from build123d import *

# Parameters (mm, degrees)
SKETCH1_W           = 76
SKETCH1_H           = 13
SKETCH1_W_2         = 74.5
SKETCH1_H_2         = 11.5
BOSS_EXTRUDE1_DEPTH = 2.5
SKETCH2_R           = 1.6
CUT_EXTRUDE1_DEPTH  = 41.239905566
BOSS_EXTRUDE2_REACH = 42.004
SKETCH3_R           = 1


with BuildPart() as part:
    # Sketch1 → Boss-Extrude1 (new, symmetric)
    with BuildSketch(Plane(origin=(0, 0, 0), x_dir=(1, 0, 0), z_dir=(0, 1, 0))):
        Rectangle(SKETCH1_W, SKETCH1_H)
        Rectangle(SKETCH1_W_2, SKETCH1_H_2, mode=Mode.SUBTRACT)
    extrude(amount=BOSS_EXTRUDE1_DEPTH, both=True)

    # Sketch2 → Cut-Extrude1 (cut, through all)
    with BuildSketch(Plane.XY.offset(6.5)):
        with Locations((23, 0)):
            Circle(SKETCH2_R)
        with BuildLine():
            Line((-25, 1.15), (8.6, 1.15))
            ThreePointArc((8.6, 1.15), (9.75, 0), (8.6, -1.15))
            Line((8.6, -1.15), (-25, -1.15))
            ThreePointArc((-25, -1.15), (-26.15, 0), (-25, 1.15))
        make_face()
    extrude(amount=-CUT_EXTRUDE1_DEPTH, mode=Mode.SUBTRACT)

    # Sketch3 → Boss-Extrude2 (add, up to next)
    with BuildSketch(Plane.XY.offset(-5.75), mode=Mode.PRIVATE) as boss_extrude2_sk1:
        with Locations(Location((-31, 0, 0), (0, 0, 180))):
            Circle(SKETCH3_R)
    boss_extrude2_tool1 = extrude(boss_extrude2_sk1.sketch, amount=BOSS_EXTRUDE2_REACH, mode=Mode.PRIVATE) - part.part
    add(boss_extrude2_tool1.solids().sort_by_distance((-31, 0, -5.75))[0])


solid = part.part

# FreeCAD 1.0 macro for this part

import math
import FreeCAD as App
import Part
import Sketcher

V = App.Vector

doc = App.newDocument("Part")
body = doc.addObject("PartDesign::Body", "Body")

# Sketch on XZ plane
sketch1 = body.newObject("Sketcher::SketchObject", "Sketch")
sketch1.AttachmentSupport = (doc.getObject("XZ_Plane"), [""])
sketch1.MapMode = "FlatFace"
sketch1.addGeometry([
    Part.LineSegment(V(-38, -6, 0), V(-38, 6, 0)),  # 0
    Part.LineSegment(V(-38, 6, 0), V(38, 6, 0)),  # 1
    Part.LineSegment(V(38, 6, 0), V(38, -6, 0)),  # 2
    Part.LineSegment(V(38, -6, 0), V(-38, -6, 0)),  # 3
    Part.LineSegment(V(37, 6, 0), V(-37, 6, 0)),  # 4
    Part.LineSegment(V(-37, 6, 0), V(-37, -6, 0)),  # 5
    Part.LineSegment(V(-37, -6, 0), V(37, -6, 0)),  # 6
    Part.LineSegment(V(37, -6, 0), V(37, 6, 0)),  # 7
], False)
sketch1.addConstraint([
    Sketcher.Constraint("Coincident", 0, 2, 1, 1),
    Sketcher.Constraint("Coincident", 1, 2, 2, 1),
    Sketcher.Constraint("Coincident", 2, 2, 3, 1),
    Sketcher.Constraint("Coincident", 3, 2, 0, 1),
    Sketcher.Constraint("Coincident", 4, 2, 5, 1),
    Sketcher.Constraint("Coincident", 5, 2, 6, 1),
    Sketcher.Constraint("Coincident", 6, 2, 7, 1),
    Sketcher.Constraint("Coincident", 7, 2, 4, 1),
    Sketcher.Constraint("Vertical", 0),
    Sketcher.Constraint("Horizontal", 1),
    Sketcher.Constraint("Vertical", 2),
    Sketcher.Constraint("Horizontal", 3),
    Sketcher.Constraint("Horizontal", 4),
    Sketcher.Constraint("Vertical", 5),
    Sketcher.Constraint("Horizontal", 6),
    Sketcher.Constraint("Vertical", 7),
    Sketcher.Constraint("Symmetric", 0, 2, 2, 2, -1, 1),
    Sketcher.Constraint("Symmetric", 4, 2, 6, 2, -1, 1),
    Sketcher.Constraint("DistanceX", 1, 1, 1, 2, 76.0),
    Sketcher.Constraint("DistanceY", 0, 1, 0, 2, 13.0),
    Sketcher.Constraint("DistanceX", 4, 2, 4, 1, 74.5),
    Sketcher.Constraint("DistanceY", 5, 2, 5, 1, 11.5),
])
pad1 = body.newObject("PartDesign::Pad", "Pad")
pad1.Profile = sketch1
pad1.Length = 5
pad1.Midplane = True

# Sketch on XY plane
sketch2 = body.newObject("Sketcher::SketchObject", "Sketch001")
sketch2.AttachmentSupport = (doc.getObject("XY_Plane"), [""])
sketch2.MapMode = "FlatFace"
sketch2.AttachmentOffset = App.Placement(V(0, 0, 6.5), App.Rotation())
sketch2.addGeometry([
    Part.Circle(V(23, 0, 0), V(0, 0, 1), 1.6),  # 0
    Part.LineSegment(V(8.6, 1.1, 0), V(-25, 1.1, 0)),  # 1
    Part.ArcOfCircle(Part.Circle(V(-25, 0, 0), V(0, 0, 1), 1.1), math.radians(90), math.radians(270)),  # 2
    Part.LineSegment(V(-25, -1.1, 0), V(8.6, -1.1, 0)),  # 3
    Part.ArcOfCircle(Part.Circle(V(8.6, 0, 0), V(0, 0, 1), 1.1), math.radians(-90), math.radians(90)),  # 4
], False)
sketch2.addConstraint([
    Sketcher.Constraint("Tangent", 1, 2, 2, 1),
    Sketcher.Constraint("Tangent", 2, 2, 3, 1),
    Sketcher.Constraint("Tangent", 3, 2, 4, 1),
    Sketcher.Constraint("Tangent", 4, 2, 1, 1),
    Sketcher.Constraint("Horizontal", 1),
    Sketcher.Constraint("Horizontal", 3),
    Sketcher.Constraint("PointOnObject", 0, 3, -1),
    Sketcher.Constraint("PointOnObject", 2, 3, -1),
    Sketcher.Constraint("Diameter", 0, 3.2),
    Sketcher.Constraint("Radius", 2, 1.15),
    Sketcher.Constraint("DistanceX", 1, 2, 1, 1, 33.6),
    Sketcher.Constraint("DistanceX", -1, 1, 0, 3, 23.0),
    Sketcher.Constraint("DistanceX", 2, 3, -1, 1, 25.0),
])
pocket1 = body.newObject("PartDesign::Pocket", "Pocket")
pocket1.Profile = sketch2
pocket1.Type = "ThroughAll"

# Sketch on XY plane
sketch3 = body.newObject("Sketcher::SketchObject", "Sketch002")
sketch3.AttachmentSupport = (doc.getObject("XY_Plane"), [""])
sketch3.MapMode = "FlatFace"
sketch3.AttachmentOffset = App.Placement(V(0, 0, -5.75), App.Rotation())
sketch3.addGeometry(Part.Circle(V(-31, 0, 0), V(0, 0, 1), 1), False)
sketch3.addConstraint([
    Sketcher.Constraint("PointOnObject", 0, 3, -1),
    Sketcher.Constraint("Diameter", 0, 2.0),
    Sketcher.Constraint("DistanceX", 0, 3, -1, 1, 31.0),
])
pad2 = body.newObject("PartDesign::Pad", "Pad001")
pad2.Profile = sketch3
pad2.Type = "UpToFirst"

doc.recompute()
